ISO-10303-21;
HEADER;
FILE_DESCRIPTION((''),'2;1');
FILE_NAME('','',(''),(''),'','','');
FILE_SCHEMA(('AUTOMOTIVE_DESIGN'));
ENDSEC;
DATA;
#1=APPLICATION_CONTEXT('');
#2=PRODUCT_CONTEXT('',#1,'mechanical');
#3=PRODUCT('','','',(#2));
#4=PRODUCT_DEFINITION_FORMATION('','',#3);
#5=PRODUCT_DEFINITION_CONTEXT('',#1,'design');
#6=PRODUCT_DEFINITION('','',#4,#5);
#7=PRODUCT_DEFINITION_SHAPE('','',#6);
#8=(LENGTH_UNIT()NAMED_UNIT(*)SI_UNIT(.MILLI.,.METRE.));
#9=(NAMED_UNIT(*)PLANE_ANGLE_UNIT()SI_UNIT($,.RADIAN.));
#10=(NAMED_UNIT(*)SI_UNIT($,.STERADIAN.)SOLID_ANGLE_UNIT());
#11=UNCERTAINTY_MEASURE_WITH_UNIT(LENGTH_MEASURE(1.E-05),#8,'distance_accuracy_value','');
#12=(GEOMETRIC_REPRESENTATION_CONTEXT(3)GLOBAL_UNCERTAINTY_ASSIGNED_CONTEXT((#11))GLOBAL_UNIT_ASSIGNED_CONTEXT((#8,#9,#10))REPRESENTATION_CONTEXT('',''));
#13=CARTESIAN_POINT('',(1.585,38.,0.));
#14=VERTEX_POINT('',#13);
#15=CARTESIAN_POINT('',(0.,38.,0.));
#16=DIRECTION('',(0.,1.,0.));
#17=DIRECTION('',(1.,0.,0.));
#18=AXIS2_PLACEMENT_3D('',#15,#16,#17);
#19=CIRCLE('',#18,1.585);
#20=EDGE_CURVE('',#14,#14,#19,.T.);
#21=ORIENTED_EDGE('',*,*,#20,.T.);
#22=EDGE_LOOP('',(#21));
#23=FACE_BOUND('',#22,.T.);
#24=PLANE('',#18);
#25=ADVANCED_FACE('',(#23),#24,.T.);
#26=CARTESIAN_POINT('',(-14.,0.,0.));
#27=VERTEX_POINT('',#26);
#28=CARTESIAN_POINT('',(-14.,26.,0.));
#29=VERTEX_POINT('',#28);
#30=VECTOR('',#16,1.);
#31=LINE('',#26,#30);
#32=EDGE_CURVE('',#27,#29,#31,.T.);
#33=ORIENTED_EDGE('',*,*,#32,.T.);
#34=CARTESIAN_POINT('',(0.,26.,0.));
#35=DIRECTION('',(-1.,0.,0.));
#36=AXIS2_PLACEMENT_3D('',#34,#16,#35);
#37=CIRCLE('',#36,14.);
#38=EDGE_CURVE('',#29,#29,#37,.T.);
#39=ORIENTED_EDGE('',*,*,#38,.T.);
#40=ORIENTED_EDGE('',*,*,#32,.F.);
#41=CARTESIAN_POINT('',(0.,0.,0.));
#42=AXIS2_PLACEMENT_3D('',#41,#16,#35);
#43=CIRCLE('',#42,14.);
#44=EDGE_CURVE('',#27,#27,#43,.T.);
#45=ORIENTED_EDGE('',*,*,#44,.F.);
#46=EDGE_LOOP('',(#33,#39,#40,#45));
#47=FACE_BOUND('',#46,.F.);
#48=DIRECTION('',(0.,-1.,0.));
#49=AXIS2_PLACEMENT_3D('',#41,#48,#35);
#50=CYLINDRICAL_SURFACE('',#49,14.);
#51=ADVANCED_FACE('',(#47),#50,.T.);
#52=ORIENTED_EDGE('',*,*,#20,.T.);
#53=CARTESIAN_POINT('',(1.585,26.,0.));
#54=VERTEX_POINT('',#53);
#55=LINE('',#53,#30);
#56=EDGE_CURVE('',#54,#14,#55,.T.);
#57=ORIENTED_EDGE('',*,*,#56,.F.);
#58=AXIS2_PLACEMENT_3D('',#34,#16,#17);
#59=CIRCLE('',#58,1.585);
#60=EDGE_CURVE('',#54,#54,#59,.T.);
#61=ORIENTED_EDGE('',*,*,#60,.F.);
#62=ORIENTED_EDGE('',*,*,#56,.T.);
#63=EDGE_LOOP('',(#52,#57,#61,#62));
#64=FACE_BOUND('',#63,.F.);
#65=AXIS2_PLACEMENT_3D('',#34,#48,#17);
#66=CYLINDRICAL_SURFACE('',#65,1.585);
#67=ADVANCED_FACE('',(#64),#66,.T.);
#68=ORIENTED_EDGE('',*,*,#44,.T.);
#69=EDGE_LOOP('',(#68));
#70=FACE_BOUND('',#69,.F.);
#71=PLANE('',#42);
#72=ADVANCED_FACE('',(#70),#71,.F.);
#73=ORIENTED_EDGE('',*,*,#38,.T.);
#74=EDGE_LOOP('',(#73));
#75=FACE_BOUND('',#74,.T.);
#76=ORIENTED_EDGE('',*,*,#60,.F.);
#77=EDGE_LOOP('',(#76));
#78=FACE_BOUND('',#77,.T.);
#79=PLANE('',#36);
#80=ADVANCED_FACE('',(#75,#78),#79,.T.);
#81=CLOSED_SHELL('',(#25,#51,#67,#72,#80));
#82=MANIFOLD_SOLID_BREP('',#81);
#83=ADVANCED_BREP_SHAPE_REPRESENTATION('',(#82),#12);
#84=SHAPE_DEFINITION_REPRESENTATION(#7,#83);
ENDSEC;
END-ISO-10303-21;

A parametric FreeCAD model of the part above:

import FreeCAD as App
import Part
import Sketcher
from FreeCAD import Vector
Q = App.Units.Quantity

doc = App.newDocument("Part")
params = doc.addObject("Spreadsheet::Sheet", "Params")
for row, (alias, value) in enumerate([
    ("sketch1_diameter", "28 mm"),
    ("pad1_length", "26 mm"),
    ("sketch2_diameter", "3.17 mm"),
    ("pad2_length", "12 mm"),
], start=1):
    params.set(f"A{row}", alias)
    params.set(f"B{row}", "=" + value)
    params.setAlias(f"B{row}", alias)

body = doc.addObject("PartDesign::Body", "Body")

sketch1 = doc.addObject("Sketcher::SketchObject", "Sketch")
body.addObject(sketch1)
sketch1.AttachmentSupport = (doc.XZ_Plane, [""])
sketch1.MapMode = "FlatFace"
sketch1.addGeometry(Part.Circle(Vector(0, 0, 0), Vector(0, 0, 1), 14), False)
sketch1.addConstraint([
    Sketcher.Constraint("Coincident", 0, 3, -1, 1),
    Sketcher.Constraint("Diameter", 0, Q("28 mm")),
])
sketch1.setExpression("Constraints[1]", "Params.sketch1_diameter")
pad1 = doc.addObject("PartDesign::Pad", "Pad")
body.addObject(pad1)
pad1.Profile = sketch1
pad1.setExpression("Length", "Params.pad1_length")
pad1.Reversed = True

sketch2 = doc.addObject("Sketcher::SketchObject", "Sketch001")
body.addObject(sketch2)
sketch2.AttachmentSupport = (doc.XZ_Plane, [""])
sketch2.MapMode = "FlatFace"
sketch2.AttachmentOffset = App.Placement(Vector(0, 0, -26), App.Rotation())
sketch2.addGeometry(Part.Circle(Vector(0, 0, 0), Vector(0, 0, 1), 1.6), False)
sketch2.addConstraint([
    Sketcher.Constraint("Coincident", 0, 3, -1, 1),
    Sketcher.Constraint("Diameter", 0, Q("3.17 mm")),
])
sketch2.setExpression("Constraints[1]", "Params.sketch2_diameter")
pad2 = doc.addObject("PartDesign::Pad", "Pad001")
body.addObject(pad2)
pad2.Profile = sketch2
pad2.setExpression("Length", "Params.pad2_length")
pad2.Reversed = True

doc.recompute()
